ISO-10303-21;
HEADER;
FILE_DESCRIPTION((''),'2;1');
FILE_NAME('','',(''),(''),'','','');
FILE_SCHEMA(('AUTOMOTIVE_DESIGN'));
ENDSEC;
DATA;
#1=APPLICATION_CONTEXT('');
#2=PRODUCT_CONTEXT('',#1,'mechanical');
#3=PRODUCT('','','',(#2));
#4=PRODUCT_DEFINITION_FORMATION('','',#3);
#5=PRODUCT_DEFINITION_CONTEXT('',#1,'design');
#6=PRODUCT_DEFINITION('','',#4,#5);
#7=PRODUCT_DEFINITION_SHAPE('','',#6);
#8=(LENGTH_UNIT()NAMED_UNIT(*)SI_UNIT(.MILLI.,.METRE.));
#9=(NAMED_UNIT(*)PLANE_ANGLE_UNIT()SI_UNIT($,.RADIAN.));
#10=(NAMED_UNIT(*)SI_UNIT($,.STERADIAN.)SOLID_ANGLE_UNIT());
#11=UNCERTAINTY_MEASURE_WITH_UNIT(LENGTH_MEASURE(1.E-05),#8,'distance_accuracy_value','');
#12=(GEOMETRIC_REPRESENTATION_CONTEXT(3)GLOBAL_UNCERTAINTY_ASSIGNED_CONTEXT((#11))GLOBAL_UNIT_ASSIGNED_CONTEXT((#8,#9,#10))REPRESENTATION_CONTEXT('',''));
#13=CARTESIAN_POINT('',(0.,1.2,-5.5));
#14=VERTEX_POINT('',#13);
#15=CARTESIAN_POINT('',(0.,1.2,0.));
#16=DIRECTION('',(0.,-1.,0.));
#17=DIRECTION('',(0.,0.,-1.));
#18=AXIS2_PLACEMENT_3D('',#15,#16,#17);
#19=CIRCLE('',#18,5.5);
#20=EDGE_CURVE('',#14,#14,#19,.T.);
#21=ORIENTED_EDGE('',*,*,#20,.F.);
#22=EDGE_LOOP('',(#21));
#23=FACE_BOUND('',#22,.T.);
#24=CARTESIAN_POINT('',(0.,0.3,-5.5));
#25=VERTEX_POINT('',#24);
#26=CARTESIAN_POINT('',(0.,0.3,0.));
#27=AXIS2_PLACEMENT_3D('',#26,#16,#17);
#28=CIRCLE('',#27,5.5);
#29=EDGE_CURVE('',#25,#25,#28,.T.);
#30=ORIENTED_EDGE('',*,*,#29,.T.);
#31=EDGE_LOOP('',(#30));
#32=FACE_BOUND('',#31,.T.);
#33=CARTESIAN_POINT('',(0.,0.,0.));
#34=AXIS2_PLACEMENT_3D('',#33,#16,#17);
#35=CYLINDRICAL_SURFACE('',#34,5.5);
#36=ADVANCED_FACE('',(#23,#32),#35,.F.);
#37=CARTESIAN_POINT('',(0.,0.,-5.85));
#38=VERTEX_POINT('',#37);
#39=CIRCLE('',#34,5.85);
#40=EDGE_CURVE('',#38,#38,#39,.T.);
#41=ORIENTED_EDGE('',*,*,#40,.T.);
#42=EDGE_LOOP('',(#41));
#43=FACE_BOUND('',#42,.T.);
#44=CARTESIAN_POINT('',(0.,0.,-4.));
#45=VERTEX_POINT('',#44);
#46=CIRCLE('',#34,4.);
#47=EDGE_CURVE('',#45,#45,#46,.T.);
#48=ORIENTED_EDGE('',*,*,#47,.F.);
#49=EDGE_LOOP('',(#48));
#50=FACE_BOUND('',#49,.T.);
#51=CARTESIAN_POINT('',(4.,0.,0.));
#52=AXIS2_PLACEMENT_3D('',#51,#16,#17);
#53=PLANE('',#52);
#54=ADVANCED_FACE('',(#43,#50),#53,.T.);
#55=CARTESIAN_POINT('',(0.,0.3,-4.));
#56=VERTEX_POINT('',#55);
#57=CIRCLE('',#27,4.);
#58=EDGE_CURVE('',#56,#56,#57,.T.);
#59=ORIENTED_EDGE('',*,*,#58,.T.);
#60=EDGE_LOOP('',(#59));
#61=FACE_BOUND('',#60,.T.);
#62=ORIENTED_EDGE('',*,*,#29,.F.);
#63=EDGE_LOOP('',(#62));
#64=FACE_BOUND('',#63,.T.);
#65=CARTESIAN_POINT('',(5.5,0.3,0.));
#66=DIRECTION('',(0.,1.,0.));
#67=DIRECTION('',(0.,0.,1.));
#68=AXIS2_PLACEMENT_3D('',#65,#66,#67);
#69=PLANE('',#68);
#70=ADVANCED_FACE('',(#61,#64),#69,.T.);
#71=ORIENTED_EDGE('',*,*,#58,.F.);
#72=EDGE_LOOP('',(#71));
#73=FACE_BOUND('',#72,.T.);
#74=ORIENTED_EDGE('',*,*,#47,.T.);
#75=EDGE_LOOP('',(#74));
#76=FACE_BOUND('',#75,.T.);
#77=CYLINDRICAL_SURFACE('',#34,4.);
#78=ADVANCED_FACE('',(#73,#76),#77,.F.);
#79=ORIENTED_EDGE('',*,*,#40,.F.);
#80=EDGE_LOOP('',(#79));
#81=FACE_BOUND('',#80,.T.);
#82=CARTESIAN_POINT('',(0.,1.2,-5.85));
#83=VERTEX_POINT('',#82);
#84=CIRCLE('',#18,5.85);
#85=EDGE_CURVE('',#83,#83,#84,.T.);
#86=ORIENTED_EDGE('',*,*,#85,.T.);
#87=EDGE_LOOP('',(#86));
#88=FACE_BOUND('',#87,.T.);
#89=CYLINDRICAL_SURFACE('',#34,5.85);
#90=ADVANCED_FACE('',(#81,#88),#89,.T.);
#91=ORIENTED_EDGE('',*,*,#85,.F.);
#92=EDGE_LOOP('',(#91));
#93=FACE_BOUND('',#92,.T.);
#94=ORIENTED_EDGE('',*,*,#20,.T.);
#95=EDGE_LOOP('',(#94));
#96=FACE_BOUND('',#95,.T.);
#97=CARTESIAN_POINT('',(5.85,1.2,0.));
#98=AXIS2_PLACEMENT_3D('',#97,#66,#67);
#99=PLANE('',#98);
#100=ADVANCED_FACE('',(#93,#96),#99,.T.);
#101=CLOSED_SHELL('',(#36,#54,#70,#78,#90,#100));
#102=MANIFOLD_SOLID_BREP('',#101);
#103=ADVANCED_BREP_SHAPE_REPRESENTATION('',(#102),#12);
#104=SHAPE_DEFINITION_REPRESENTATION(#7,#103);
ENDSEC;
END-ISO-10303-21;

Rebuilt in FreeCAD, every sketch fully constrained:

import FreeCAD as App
import Part
import Sketcher

V = App.Vector


def add_polygon(sketch, points):
    """Adds a closed chain of lines whose ends are joined by coincident constraints."""
    first, n = sketch.GeometryCount, len(points)
    for a, b in zip(points, points[1:] + points[:1]):
        sketch.addGeometry(Part.LineSegment(App.Vector(*a, 0), App.Vector(*b, 0)), False)
    for i in range(n):
        sketch.addConstraint(Sketcher.Constraint("Coincident", first + i, 2, first + (i + 1) % n, 1))

doc = App.newDocument("Part")
body = doc.addObject("PartDesign::Body", "Body")

# Sketch on XY plane
sketch1 = doc.addObject("Sketcher::SketchObject", "Sketch")
body.addObject(sketch1)
sketch1.AttachmentSupport = (doc.XY_Plane, [""])
sketch1.MapMode = "FlatFace"
add_polygon(sketch1, [(4, 0), (5.85, 0), (5.85, 1.2), (5.5, 1.2), (5.5, 0.3), (4, 0.3)])  # lines 0-5
sketch1.addConstraint(Sketcher.Constraint("Horizontal", 0))
sketch1.addConstraint(Sketcher.Constraint("Vertical", 1))
sketch1.addConstraint(Sketcher.Constraint("Horizontal", 2))
sketch1.addConstraint(Sketcher.Constraint("Vertical", 3))
sketch1.addConstraint(Sketcher.Constraint("Horizontal", 4))
sketch1.addConstraint(Sketcher.Constraint("Vertical", 5))
sketch1.addConstraint(Sketcher.Constraint("PointOnObject", 0, 2, -1))
sketch1.addConstraint(Sketcher.Constraint("DistanceX", 4, 2, 4, 1, 1.5))
sketch1.addConstraint(Sketcher.Constraint("DistanceY", 1, 1, 1, 2, 1.2))
sketch1.addConstraint(Sketcher.Constraint("DistanceY", 3, 2, 3, 1, 0.9))
sketch1.addConstraint(Sketcher.Constraint("DistanceX", -1, 1, 4, 2, 4.0))
sketch1.addConstraint(Sketcher.Constraint("DistanceX", 0, 1, 0, 2, 1.85))
revolution = doc.addObject("PartDesign::Revolution", "Revolution")
body.addObject(revolution)
revolution.Profile = sketch1
revolution.ReferenceAxis = (sketch1, ["V_Axis"])
revolution.Angle = 360

doc.recompute()
